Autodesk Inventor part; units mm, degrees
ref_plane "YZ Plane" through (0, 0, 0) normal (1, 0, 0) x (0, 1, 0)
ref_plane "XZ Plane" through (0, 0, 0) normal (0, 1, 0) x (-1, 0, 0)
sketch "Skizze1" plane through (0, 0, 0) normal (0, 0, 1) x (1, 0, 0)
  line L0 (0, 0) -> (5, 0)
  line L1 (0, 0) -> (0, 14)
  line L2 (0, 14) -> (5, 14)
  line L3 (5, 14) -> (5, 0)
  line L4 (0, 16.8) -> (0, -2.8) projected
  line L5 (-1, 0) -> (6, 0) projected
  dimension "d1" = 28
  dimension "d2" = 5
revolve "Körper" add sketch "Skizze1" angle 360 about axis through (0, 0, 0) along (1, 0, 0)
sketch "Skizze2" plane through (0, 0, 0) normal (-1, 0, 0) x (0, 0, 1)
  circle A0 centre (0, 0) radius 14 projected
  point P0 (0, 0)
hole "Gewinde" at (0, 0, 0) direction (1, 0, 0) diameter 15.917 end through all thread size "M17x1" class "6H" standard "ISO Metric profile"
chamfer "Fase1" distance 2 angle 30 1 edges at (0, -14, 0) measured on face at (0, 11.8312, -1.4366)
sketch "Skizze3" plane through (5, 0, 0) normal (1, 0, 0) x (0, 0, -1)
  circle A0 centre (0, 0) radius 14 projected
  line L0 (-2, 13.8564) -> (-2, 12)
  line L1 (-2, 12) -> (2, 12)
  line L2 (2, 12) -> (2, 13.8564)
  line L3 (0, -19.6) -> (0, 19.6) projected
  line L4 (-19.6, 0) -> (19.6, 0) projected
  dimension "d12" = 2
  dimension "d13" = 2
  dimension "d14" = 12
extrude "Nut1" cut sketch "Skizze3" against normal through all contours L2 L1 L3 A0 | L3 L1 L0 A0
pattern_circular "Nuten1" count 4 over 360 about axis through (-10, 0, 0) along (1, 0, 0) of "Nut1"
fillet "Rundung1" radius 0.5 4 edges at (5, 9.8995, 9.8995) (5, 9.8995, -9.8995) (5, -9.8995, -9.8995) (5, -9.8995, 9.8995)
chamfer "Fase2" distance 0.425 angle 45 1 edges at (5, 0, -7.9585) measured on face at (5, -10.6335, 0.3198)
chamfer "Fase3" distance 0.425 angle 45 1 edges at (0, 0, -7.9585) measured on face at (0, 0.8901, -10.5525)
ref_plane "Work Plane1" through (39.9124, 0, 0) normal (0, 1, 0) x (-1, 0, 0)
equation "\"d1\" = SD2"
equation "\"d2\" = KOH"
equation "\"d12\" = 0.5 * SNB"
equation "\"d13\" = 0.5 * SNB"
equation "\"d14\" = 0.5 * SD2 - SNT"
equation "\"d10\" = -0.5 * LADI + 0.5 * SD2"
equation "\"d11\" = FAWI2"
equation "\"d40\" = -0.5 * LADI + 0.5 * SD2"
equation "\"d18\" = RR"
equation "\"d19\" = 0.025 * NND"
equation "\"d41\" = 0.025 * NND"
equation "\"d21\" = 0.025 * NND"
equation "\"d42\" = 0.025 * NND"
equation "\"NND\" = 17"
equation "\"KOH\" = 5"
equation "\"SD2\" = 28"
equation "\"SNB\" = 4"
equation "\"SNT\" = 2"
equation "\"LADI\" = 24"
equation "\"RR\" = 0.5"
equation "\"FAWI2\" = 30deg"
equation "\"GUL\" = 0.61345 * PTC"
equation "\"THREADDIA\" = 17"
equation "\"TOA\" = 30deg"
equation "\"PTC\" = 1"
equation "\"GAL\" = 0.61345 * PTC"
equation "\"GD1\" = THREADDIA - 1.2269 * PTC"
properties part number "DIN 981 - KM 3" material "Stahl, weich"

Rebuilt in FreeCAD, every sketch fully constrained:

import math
import FreeCAD as App
import Part
import Sketcher
from FreeCAD import Vector


def edges_at(feature, points):
    """Names of the edges that pass closest to the given points."""
    edges = feature.Shape.Edges
    near = lambda p: min(range(len(edges)), key=lambda i: edges[i].distToShape(Part.Vertex(*p))[0])
    return sorted({f"Edge{near(p) + 1}" for p in points})

doc = App.newDocument("Part")
body = doc.addObject("PartDesign::Body", "Body")

sketch1 = body.newObject("Sketcher::SketchObject", "Sketch")
sketch1.AttachmentSupport = (doc.getObject("XY_Plane"), [""])
sketch1.MapMode = "FlatFace"
sketch1.addGeometry(Part.LineSegment(Vector(0, 14, 0), Vector(0, 0, 0)), False)
sketch1.addGeometry(Part.LineSegment(Vector(0, 0, 0), Vector(5, 0, 0)), False)
sketch1.addGeometry(Part.LineSegment(Vector(5, 0, 0), Vector(5, 14, 0)), False)
sketch1.addGeometry(Part.LineSegment(Vector(5, 14, 0), Vector(0, 14, 0)), False)
sketch1.addConstraint(Sketcher.Constraint("Coincident", 0, 2, 1, 1))
sketch1.addConstraint(Sketcher.Constraint("Coincident", 1, 2, 2, 1))
sketch1.addConstraint(Sketcher.Constraint("Coincident", 2, 2, 3, 1))
sketch1.addConstraint(Sketcher.Constraint("Coincident", 3, 2, 0, 1))
sketch1.addConstraint(Sketcher.Constraint("Vertical", 0))
sketch1.addConstraint(Sketcher.Constraint("Horizontal", 1))
sketch1.addConstraint(Sketcher.Constraint("Vertical", 2))
sketch1.addConstraint(Sketcher.Constraint("Horizontal", 3))
sketch1.addConstraint(Sketcher.Constraint("Coincident", 0, 2, -1, 1))
sketch1.addConstraint(Sketcher.Constraint("DistanceX", 1, 1, 1, 2, 5.0))
sketch1.addConstraint(Sketcher.Constraint("DistanceY", 0, 2, 0, 1, 14.0))
revolution = body.newObject("PartDesign::Revolution", "Revolution")
revolution.Profile = sketch1
revolution.ReferenceAxis = (sketch1, ["H_Axis"])
revolution.Angle = 360

sketch2 = body.newObject("Sketcher::SketchObject", "Sketch001")
sketch2.AttachmentSupport = (doc.getObject("YZ_Plane"), [""])
sketch2.MapMode = "FlatFace"
sketch2.addGeometry(Part.Circle(Vector(0, 0, 0), Vector(0, 0, 1), 8), False)
sketch2.addConstraint(Sketcher.Constraint("Coincident", 0, 3, -1, 1))
sketch2.addConstraint(Sketcher.Constraint("Diameter", 0, 15.917))
doc.recompute()
hole = body.newObject("PartDesign::Hole", "Hole")
hole.Profile = sketch2
hole.ThreadType = "None"
hole.Diameter = 15.917
hole.DepthType = "ThroughAll"
hole.Reversed = True
doc.recompute()

chamfer = body.newObject("PartDesign::Chamfer", "Chamfer")
chamfer.Base = (hole, edges_at(hole, [(0, -14, 0)]))
chamfer.ChamferType = "Distance and Angle"
chamfer.Size = 2
chamfer.Angle = 30

sketch3 = body.newObject("Sketcher::SketchObject", "Sketch002")
sketch3.AttachmentSupport = (doc.getObject("YZ_Plane"), [""])
sketch3.MapMode = "FlatFace"
sketch3.AttachmentOffset = App.Placement(Vector(0, 0, 5), App.Rotation())
sketch3.addGeometry(Part.LineSegment(Vector(12, -2, 0), Vector(13.9, -2, 0)), False)
sketch3.addGeometry(Part.ArcOfCircle(Part.Circle(Vector(0, 0, 0), Vector(0, 0, 1), 14), math.radians(-8.21), math.radians(8.21)), False)
sketch3.addGeometry(Part.LineSegment(Vector(13.9, 2, 0), Vector(12, 2, 0)), False)
sketch3.addGeometry(Part.LineSegment(Vector(12, 2, 0), Vector(12, -2, 0)), False)
sketch3.addConstraint(Sketcher.Constraint("Coincident", 0, 2, 1, 1))
sketch3.addConstraint(Sketcher.Constraint("Coincident", 1, 2, 2, 1))
sketch3.addConstraint(Sketcher.Constraint("Coincident", 2, 2, 3, 1))
sketch3.addConstraint(Sketcher.Constraint("Coincident", 3, 2, 0, 1))
sketch3.addConstraint(Sketcher.Constraint("Horizontal", 0))
sketch3.addConstraint(Sketcher.Constraint("Horizontal", 2))
sketch3.addConstraint(Sketcher.Constraint("Vertical", 3))
sketch3.addConstraint(Sketcher.Constraint("Coincident", 1, 3, -1, 1))
sketch3.addConstraint(Sketcher.Constraint("Vertical", 0, 2, 1, 2))
sketch3.addConstraint(Sketcher.Constraint("DistanceY", 0, 2, -1, 1, 2.0))
sketch3.addConstraint(Sketcher.Constraint("DistanceX", -1, 1, 2, 2, 12.0))
sketch3.addConstraint(Sketcher.Constraint("Radius", 1, 14.0))
pocket1 = body.newObject("PartDesign::Pocket", "Pocket")
pocket1.Profile = sketch3
pocket1.Type = "ThroughAll"
doc.recompute()

polarpattern = body.newObject("PartDesign::PolarPattern", "PolarPattern")
polarpattern.Originals = [pocket1]
polarpattern.Axis = (doc.getObject("X_Axis"), [""])
polarpattern.Angle = 360
polarpattern.Occurrences = 4
body.Tip = polarpattern
doc.recompute()

fillet = body.newObject("PartDesign::Fillet", "Fillet")
fillet.Base = (polarpattern, edges_at(polarpattern, [
    (5, 9.899, 9.899),
    (5, 9.899, -9.899),
    (5, -9.899, -9.899),
    (5, -9.899, 9.899),
]))
fillet.Radius = 0.5
doc.recompute()

chamfer2 = body.newObject("PartDesign::Chamfer", "Chamfer001")
chamfer2.Base = (fillet, edges_at(fillet, [(5, 0, -7.958)]))
chamfer2.Size = 0.425
doc.recompute()

chamfer3 = body.newObject("PartDesign::Chamfer", "Chamfer002")
chamfer3.Base = (chamfer2, edges_at(chamfer2, [(0, 0, -7.958)]))
chamfer3.Size = 0.425

doc.recompute()
